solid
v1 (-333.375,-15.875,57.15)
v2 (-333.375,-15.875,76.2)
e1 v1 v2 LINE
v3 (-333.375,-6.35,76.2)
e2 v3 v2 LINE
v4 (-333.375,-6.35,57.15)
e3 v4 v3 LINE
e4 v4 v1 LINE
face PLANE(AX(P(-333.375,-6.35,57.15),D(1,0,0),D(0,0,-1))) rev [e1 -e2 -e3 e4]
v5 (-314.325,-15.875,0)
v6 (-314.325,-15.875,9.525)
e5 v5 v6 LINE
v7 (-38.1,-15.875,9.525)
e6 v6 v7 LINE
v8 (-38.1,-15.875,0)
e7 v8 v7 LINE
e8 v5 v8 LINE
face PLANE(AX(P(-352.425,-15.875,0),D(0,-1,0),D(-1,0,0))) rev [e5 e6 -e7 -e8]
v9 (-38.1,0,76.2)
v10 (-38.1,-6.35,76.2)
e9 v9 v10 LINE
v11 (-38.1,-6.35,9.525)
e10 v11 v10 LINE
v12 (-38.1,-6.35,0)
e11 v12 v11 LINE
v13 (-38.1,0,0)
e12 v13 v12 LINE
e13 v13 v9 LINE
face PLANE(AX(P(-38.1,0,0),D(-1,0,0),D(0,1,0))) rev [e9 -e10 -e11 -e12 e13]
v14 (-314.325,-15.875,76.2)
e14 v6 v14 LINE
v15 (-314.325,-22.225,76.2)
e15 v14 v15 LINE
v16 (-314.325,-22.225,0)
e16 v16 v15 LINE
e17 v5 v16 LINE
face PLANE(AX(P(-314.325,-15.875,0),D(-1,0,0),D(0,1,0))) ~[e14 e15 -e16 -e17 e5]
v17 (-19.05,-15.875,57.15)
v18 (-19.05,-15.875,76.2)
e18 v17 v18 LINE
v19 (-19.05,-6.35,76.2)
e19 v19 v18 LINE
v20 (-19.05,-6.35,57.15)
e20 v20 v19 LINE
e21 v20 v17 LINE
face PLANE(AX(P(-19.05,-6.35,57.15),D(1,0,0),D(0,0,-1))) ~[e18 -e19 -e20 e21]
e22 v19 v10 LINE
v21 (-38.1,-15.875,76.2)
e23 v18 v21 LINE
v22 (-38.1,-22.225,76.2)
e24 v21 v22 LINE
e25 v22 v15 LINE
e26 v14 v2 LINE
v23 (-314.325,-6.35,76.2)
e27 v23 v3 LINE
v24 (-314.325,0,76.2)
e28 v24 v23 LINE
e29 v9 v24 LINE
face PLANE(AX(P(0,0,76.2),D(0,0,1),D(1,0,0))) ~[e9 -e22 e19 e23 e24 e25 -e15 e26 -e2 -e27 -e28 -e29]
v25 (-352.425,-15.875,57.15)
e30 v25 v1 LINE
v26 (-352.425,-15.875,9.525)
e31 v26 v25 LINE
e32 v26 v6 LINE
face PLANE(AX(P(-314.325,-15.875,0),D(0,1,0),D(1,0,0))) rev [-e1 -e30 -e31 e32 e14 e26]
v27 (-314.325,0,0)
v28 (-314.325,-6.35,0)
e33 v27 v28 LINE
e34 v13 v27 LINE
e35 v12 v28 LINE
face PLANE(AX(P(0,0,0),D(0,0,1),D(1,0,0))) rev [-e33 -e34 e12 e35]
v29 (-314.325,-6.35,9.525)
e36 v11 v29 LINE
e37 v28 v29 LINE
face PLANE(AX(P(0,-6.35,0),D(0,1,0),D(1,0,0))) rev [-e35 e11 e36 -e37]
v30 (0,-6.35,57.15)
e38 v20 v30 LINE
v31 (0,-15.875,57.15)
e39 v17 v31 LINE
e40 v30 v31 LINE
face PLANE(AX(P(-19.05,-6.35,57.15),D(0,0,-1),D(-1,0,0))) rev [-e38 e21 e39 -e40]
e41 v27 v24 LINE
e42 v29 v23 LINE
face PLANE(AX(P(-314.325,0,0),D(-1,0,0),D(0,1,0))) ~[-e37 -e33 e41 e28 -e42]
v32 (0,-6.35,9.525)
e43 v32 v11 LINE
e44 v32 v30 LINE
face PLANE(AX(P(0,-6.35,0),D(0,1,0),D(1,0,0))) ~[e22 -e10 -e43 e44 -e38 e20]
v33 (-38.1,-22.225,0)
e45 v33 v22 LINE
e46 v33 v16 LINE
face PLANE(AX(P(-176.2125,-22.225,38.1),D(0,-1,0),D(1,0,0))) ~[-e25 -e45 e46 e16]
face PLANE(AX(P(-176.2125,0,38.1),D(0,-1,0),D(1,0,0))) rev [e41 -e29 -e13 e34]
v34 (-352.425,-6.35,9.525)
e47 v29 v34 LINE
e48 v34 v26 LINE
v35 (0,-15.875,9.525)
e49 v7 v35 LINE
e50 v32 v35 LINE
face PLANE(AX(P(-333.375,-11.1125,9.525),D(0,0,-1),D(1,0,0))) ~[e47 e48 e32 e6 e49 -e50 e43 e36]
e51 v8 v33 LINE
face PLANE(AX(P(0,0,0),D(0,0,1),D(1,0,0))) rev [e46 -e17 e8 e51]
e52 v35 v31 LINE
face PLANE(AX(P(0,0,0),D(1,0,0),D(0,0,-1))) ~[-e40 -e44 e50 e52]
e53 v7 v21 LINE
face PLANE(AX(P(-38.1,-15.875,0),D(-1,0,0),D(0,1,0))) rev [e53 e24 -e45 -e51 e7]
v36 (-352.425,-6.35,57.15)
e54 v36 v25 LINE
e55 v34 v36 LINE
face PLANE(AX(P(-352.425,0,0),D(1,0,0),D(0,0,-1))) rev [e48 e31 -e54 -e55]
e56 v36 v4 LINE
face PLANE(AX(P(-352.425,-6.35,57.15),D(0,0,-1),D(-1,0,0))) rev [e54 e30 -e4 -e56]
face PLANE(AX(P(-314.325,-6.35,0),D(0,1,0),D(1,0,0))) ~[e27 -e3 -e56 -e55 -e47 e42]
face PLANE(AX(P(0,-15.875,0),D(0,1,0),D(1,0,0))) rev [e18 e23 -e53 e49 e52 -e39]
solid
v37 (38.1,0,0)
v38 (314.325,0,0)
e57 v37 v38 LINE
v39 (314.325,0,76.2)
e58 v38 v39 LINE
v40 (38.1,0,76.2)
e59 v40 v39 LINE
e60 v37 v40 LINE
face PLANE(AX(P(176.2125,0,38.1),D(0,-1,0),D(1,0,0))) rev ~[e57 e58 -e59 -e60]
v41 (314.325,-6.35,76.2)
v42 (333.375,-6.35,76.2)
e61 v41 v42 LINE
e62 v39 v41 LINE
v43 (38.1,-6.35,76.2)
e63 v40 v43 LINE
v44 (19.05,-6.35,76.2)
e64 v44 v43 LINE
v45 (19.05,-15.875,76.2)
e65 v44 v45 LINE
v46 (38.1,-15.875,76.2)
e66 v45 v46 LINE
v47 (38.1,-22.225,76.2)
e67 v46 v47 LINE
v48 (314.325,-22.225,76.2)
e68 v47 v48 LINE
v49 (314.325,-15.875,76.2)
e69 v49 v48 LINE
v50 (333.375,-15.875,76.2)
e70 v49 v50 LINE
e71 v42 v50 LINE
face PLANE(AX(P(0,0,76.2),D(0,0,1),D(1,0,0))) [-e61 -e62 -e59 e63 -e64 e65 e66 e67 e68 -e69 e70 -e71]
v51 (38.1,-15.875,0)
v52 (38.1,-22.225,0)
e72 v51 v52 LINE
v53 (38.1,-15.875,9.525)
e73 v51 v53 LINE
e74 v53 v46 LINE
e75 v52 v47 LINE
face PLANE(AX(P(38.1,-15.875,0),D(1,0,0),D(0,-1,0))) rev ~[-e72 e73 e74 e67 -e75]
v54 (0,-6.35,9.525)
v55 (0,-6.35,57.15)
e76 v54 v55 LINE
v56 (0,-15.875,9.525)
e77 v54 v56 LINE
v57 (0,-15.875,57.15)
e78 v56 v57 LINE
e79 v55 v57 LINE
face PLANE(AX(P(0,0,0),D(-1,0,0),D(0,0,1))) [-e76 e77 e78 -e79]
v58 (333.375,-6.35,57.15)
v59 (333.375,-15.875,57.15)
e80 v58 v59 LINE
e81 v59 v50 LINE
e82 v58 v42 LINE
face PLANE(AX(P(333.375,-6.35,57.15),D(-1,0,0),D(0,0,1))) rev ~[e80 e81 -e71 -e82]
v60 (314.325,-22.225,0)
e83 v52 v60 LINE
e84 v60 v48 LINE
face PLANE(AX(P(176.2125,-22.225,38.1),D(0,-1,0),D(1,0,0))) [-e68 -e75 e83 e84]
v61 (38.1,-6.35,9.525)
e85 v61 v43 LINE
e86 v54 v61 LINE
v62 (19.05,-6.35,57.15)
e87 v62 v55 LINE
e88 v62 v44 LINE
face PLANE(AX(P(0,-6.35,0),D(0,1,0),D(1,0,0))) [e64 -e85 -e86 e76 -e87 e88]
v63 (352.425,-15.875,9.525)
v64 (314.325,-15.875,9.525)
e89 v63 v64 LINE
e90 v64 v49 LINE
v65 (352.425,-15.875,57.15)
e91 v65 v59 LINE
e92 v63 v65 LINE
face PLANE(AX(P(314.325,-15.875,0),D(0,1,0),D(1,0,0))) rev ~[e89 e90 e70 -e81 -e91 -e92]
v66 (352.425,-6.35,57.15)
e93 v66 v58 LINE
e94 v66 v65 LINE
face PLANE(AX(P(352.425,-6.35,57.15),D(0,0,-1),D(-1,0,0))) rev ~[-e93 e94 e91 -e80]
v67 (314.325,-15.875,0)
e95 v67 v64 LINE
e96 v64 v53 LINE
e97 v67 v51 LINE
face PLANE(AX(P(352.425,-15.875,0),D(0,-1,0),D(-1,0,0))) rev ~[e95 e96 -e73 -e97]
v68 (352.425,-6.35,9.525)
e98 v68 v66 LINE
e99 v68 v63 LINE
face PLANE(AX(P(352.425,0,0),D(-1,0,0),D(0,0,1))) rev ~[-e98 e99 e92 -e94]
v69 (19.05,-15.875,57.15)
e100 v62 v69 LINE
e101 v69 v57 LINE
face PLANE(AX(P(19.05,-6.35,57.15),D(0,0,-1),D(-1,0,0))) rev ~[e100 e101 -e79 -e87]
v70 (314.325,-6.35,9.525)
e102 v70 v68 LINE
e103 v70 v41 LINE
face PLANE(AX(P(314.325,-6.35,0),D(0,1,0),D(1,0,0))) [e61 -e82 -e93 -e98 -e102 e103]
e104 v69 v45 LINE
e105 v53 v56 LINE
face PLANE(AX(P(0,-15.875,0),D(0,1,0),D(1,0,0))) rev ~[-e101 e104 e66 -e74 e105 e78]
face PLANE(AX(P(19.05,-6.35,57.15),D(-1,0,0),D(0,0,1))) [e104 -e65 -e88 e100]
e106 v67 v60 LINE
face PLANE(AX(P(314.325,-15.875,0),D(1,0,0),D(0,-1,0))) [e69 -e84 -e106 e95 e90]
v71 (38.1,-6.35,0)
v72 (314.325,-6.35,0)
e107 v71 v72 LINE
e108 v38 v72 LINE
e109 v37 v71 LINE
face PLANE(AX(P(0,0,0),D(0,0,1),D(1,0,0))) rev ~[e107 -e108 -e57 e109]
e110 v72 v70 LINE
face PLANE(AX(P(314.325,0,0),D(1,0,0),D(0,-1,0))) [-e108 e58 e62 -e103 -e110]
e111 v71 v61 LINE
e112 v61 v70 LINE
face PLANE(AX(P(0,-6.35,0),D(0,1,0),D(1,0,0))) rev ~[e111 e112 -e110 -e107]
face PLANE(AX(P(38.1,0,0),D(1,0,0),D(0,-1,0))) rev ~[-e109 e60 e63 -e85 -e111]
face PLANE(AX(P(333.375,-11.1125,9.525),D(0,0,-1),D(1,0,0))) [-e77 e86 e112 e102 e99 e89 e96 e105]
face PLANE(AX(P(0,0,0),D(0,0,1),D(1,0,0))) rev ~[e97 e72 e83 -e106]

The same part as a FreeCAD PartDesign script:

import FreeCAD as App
import Part
import Sketcher
Q = App.Units.Quantity

doc = App.newDocument("Part")
body = doc.addObject("PartDesign::Body", "Body")

sketch1 = doc.addObject("Sketcher::SketchObject", "Sketch")
body.addObject(sketch1)
sketch1.AttachmentSupport = (doc.XZ_Plane, [""])
sketch1.MapMode = "FlatFace"
sketch1.addGeometry([
    Part.LineSegment(App.Vector(0, 76.2, 0), App.Vector(0, 0, 0)),
    Part.LineSegment(App.Vector(0, 0, 0), App.Vector(352.425, 0, 0)),
    Part.LineSegment(App.Vector(352.425, 0, 0), App.Vector(352.425, 76.2, 0)),
    Part.LineSegment(App.Vector(352.425, 76.2, 0), App.Vector(0, 76.2, 0)),
], False)
sketch1.addConstraint([
    Sketcher.Constraint("Coincident", 0, 2, 1, 1),
    Sketcher.Constraint("Coincident", 1, 2, 2, 1),
    Sketcher.Constraint("Coincident", 2, 2, 3, 1),
    Sketcher.Constraint("Coincident", 3, 2, 0, 1),
    Sketcher.Constraint("Vertical", 0),
    Sketcher.Constraint("Horizontal", 1),
    Sketcher.Constraint("Vertical", 2),
    Sketcher.Constraint("Horizontal", 3),
    Sketcher.Constraint("Coincident", 0, 2, -1, 1),
    Sketcher.Constraint("DistanceY", 0, 2, 0, 1, Q("3 in")),
    Sketcher.Constraint("DistanceX", 1, 1, 1, 2, Q("13.875 in")),
])
pad1 = doc.addObject("PartDesign::Pad", "Pad")
body.addObject(pad1)
pad1.Profile = sketch1
pad1.Length = Q("0.875 in")

sketch2 = doc.addObject("Sketcher::SketchObject", "Sketch001")
body.addObject(sketch2)
sketch2.AttachmentSupport = (doc.XY_Plane, [""])
sketch2.MapMode = "FlatFace"
sketch2.addGeometry([
    Part.LineSegment(App.Vector(352.425, -6.35, 0), App.Vector(352.425, -15.875, 0)),
    Part.LineSegment(App.Vector(352.425, -15.875, 0), App.Vector(0, -15.875, 0)),
    Part.LineSegment(App.Vector(0, -15.875, 0), App.Vector(0, -6.35, 0)),
    Part.LineSegment(App.Vector(0, -6.35, 0), App.Vector(352.425, -6.35, 0)),
], False)
sketch2.addConstraint([
    Sketcher.Constraint("Coincident", 0, 2, 1, 1),
    Sketcher.Constraint("Coincident", 1, 2, 2, 1),
    Sketcher.Constraint("Coincident", 2, 2, 3, 1),
    Sketcher.Constraint("Coincident", 3, 2, 0, 1),
    Sketcher.Constraint("Vertical", 0),
    Sketcher.Constraint("Horizontal", 1),
    Sketcher.Constraint("Vertical", 2),
    Sketcher.Constraint("Horizontal", 3),
    Sketcher.Constraint("PointOnObject", 1, 2, -2),
    Sketcher.Constraint("DistanceX", 1, 2, 1, 1, Q("13.875 in")),
    Sketcher.Constraint("DistanceY", 0, 2, 0, 1, Q("0.375 in")),
    Sketcher.Constraint("DistanceY", 2, 2, -1, 1, Q("0.25 in")),
])
pocket1 = doc.addObject("PartDesign::Pocket", "Pocket")
body.addObject(pocket1)
pocket1.Profile = sketch2
pocket1.Length = Q("0.375 in")
pocket1.Reversed = True

sketch3 = doc.addObject("Sketcher::SketchObject", "Sketch002")
body.addObject(sketch3)
sketch3.AttachmentSupport = (doc.XY_Plane, [""])
sketch3.MapMode = "FlatFace"
sketch3.addGeometry([
    Part.LineSegment(App.Vector(0, -22.225, 0), App.Vector(0, -15.875, 0)),
    Part.LineSegment(App.Vector(0, -15.875, 0), App.Vector(38.1, -15.875, 0)),
    Part.LineSegment(App.Vector(38.1, -15.875, 0), App.Vector(38.1, -22.225, 0)),
    Part.LineSegment(App.Vector(38.1, -22.225, 0), App.Vector(0, -22.225, 0)),
    Part.LineSegment(App.Vector(314.325, -22.225, 0), App.Vector(314.325, -15.875, 0)),
    Part.LineSegment(App.Vector(314.325, -15.875, 0), App.Vector(352.425, -15.875, 0)),
    Part.LineSegment(App.Vector(352.425, -15.875, 0), App.Vector(352.425, -22.225, 0)),
    Part.LineSegment(App.Vector(352.425, -22.225, 0), App.Vector(314.325, -22.225, 0)),
    Part.LineSegment(App.Vector(314.325, -6.35, 0), App.Vector(314.325, 0, 0)),
    Part.LineSegment(App.Vector(314.325, 0, 0), App.Vector(352.425, 0, 0)),
    Part.LineSegment(App.Vector(352.425, 0, 0), App.Vector(352.425, -6.35, 0)),
    Part.LineSegment(App.Vector(352.425, -6.35, 0), App.Vector(314.325, -6.35, 0)),
    Part.LineSegment(App.Vector(0, -6.35, 0), App.Vector(0, 0, 0)),
    Part.LineSegment(App.Vector(0, 0, 0), App.Vector(38.1, 0, 0)),
    Part.LineSegment(App.Vector(38.1, 0, 0), App.Vector(38.1, -6.35, 0)),
    Part.LineSegment(App.Vector(38.1, -6.35, 0), App.Vector(0, -6.35, 0)),
], False)
sketch3.addConstraint([
    Sketcher.Constraint("Coincident", 0, 2, 1, 1),
    Sketcher.Constraint("Coincident", 1, 2, 2, 1),
    Sketcher.Constraint("Coincident", 2, 2, 3, 1),
    Sketcher.Constraint("Coincident", 3, 2, 0, 1),
    Sketcher.Constraint("Coincident", 4, 2, 5, 1),
    Sketcher.Constraint("Coincident", 5, 2, 6, 1),
    Sketcher.Constraint("Coincident", 6, 2, 7, 1),
    Sketcher.Constraint("Coincident", 7, 2, 4, 1),
    Sketcher.Constraint("Coincident", 8, 2, 9, 1),
    Sketcher.Constraint("Coincident", 9, 2, 10, 1),
    Sketcher.Constraint("Coincident", 10, 2, 11, 1),
    Sketcher.Constraint("Coincident", 11, 2, 8, 1),
    Sketcher.Constraint("Coincident", 12, 2, 13, 1),
    Sketcher.Constraint("Coincident", 13, 2, 14, 1),
    Sketcher.Constraint("Coincident", 14, 2, 15, 1),
    Sketcher.Constraint("Coincident", 15, 2, 12, 1),
    Sketcher.Constraint("Vertical", 0),
    Sketcher.Constraint("Horizontal", 1),
    Sketcher.Constraint("Vertical", 2),
    Sketcher.Constraint("Horizontal", 3),
    Sketcher.Constraint("Vertical", 4),
    Sketcher.Constraint("Horizontal", 5),
    Sketcher.Constraint("Vertical", 6),
    Sketcher.Constraint("Horizontal", 7),
    Sketcher.Constraint("Vertical", 8),
    Sketcher.Constraint("Horizontal", 9),
    Sketcher.Constraint("Vertical", 10),
    Sketcher.Constraint("Horizontal", 11),
    Sketcher.Constraint("Vertical", 12),
    Sketcher.Constraint("Horizontal", 13),
    Sketcher.Constraint("Vertical", 14),
    Sketcher.Constraint("Horizontal", 15),
    Sketcher.Constraint("Coincident", 12, 2, -1, 1),
    Sketcher.Constraint("PointOnObject", 0, 2, -2),
    Sketcher.Constraint("PointOnObject", 8, 2, -1),
    Sketcher.Constraint("Horizontal", 1, 2, 4, 2),
    Sketcher.Constraint("Horizontal", 3, 2, 6, 2),
    Sketcher.Constraint("Horizontal", 11, 2, 14, 2),
    Sketcher.Constraint("Vertical", 7, 2, 8, 2),
    Sketcher.Constraint("Vertical", 6, 2, 9, 2),
    Sketcher.Constraint("Vertical", 2, 2, 13, 2),
    Sketcher.Constraint("Equal", 3, 5),
    Sketcher.Constraint("Equal", 6, 8),
    Sketcher.Constraint("DistanceX", 1, 1, 1, 2, Q("1.5 in")),
    Sketcher.Constraint("DistanceY", 0, 1, 0, 2, Q("0.25 in")),
    Sketcher.Constraint("DistanceY", 0, 2, -1, 1, Q("0.625 in")),
    Sketcher.Constraint("DistanceX", -1, 1, 4, 2, Q("12.375 in")),
])
pocket2 = doc.addObject("PartDesign::Pocket", "Pocket001")
body.addObject(pocket2)
pocket2.Profile = sketch3
pocket2.Type = "ThroughAll"
pocket2.Reversed = True

sketch4 = doc.addObject("Sketcher::SketchObject", "Sketch003")
body.addObject(sketch4)
sketch4.AttachmentSupport = (doc.XZ_Plane, [""])
sketch4.MapMode = "FlatFace"
sketch4.AttachmentOffset = App.Placement(App.Vector(0, 0, 0.25 * 25.4), App.Rotation())
sketch4.addGeometry([
    Part.LineSegment(App.Vector(352.425, 76.2, 0), App.Vector(352.425, 57.15, 0)),
    Part.LineSegment(App.Vector(352.425, 57.15, 0), App.Vector(333.375, 57.15, 0)),
    Part.LineSegment(App.Vector(333.375, 57.15, 0), App.Vector(333.375, 76.2, 0)),
    Part.LineSegment(App.Vector(333.375, 76.2, 0), App.Vector(352.425, 76.2, 0)),
    Part.LineSegment(App.Vector(19.05, 76.2, 0), App.Vector(19.05, 57.15, 0)),
    Part.LineSegment(App.Vector(19.05, 57.15, 0), App.Vector(0, 57.15, 0)),
    Part.LineSegment(App.Vector(0, 57.15, 0), App.Vector(0, 76.2, 0)),
    Part.LineSegment(App.Vector(0, 76.2, 0), App.Vector(19.05, 76.2, 0)),
], False)
sketch4.addConstraint([
    Sketcher.Constraint("Coincident", 0, 2, 1, 1),
    Sketcher.Constraint("Coincident", 1, 2, 2, 1),
    Sketcher.Constraint("Coincident", 2, 2, 3, 1),
    Sketcher.Constraint("Coincident", 3, 2, 0, 1),
    Sketcher.Constraint("Coincident", 4, 2, 5, 1),
    Sketcher.Constraint("Coincident", 5, 2, 6, 1),
    Sketcher.Constraint("Coincident", 6, 2, 7, 1),
    Sketcher.Constraint("Coincident", 7, 2, 4, 1),
    Sketcher.Constraint("Vertical", 0),
    Sketcher.Constraint("Horizontal", 1),
    Sketcher.Constraint("Vertical", 2),
    Sketcher.Constraint("Horizontal", 3),
    Sketcher.Constraint("Vertical", 4),
    Sketcher.Constraint("Horizontal", 5),
    Sketcher.Constraint("Vertical", 6),
    Sketcher.Constraint("Horizontal", 7),
    Sketcher.Constraint("PointOnObject", 5, 2, -2),
    Sketcher.Constraint("Horizontal", 1, 2, 4, 2),
    Sketcher.Constraint("Horizontal", 3, 2, 6, 2),
    Sketcher.Constraint("Equal", 3, 5),
    Sketcher.Constraint("Equal", 7, 0),
    Sketcher.Constraint("DistanceY", -1, 1, 2, 2, Q("3 in")),
    Sketcher.Constraint("DistanceX", 1, 2, 1, 1, Q("0.75 in")),
    Sketcher.Constraint("DistanceX", -1, 1, 0, 2, Q("13.875 in")),
])
pocket3 = doc.addObject("PartDesign::Pocket", "Pocket002")
body.addObject(pocket3)
pocket3.Profile = sketch4
pocket3.Type = "ThroughAll"
pocket3.Reversed = True
body2 = doc.addObject("PartDesign::Body", "Body001")
doc.recompute()

mirroring = doc.addObject("Part::Mirroring", "Mirroring")
mirroring.Source = body
mirroring.Base = App.Vector(0, 0, 0)
mirroring.Normal = App.Vector(1, 0, 0)
body2.BaseFeature = mirroring
doc.recompute()
mirroring.Visibility = False

doc.recompute()
